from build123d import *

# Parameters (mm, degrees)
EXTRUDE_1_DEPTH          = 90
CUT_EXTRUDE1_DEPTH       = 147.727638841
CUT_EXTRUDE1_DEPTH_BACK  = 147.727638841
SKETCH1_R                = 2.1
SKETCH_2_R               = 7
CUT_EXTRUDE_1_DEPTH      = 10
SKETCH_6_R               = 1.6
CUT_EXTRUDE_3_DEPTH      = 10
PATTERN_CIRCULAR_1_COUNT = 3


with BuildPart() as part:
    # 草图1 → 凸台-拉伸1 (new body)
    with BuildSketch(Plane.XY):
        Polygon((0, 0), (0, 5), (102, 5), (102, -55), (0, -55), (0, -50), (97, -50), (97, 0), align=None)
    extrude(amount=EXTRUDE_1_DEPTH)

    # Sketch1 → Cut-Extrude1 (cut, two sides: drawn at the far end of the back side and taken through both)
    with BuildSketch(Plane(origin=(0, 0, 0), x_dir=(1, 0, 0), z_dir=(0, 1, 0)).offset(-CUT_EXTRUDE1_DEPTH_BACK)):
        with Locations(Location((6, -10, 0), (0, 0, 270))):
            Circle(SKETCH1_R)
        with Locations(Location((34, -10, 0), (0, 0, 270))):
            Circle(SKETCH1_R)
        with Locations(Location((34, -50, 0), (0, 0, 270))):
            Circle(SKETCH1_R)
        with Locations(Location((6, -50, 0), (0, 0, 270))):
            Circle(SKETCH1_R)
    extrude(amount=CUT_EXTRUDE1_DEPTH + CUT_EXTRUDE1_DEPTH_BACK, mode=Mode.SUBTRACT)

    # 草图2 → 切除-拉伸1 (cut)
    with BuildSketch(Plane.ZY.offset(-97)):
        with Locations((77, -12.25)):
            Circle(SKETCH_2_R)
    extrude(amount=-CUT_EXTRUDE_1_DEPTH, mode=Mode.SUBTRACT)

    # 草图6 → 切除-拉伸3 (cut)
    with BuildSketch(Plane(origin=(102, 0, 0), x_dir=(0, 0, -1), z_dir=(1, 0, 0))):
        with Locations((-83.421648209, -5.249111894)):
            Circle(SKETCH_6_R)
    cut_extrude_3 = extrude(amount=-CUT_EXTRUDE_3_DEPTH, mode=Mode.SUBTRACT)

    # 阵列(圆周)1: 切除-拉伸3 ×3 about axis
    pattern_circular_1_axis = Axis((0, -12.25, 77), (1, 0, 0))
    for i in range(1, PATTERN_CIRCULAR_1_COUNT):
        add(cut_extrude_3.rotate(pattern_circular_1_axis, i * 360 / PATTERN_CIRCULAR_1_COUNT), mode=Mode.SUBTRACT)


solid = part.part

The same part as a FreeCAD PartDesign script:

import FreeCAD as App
import Part
import Sketcher

V = App.Vector

doc = App.newDocument("Part")
body = doc.addObject("PartDesign::Body", "Body")

sketch1 = body.newObject("Sketcher::SketchObject", "Sketch")
sketch1.AttachmentSupport = (doc.getObject("XY_Plane"), [""])
sketch1.MapMode = "FlatFace"
sketch1.addGeometry(Part.LineSegment(V(0, 5, 0), V(0, 0, 0)), False)
sketch1.addGeometry(Part.LineSegment(V(0, 0, 0), V(97, 0, 0)), False)
sketch1.addGeometry(Part.LineSegment(V(97, 0, 0), V(97, -50, 0)), False)
sketch1.addGeometry(Part.LineSegment(V(97, -50, 0), V(0, -50, 0)), False)
sketch1.addGeometry(Part.LineSegment(V(0, -50, 0), V(0, -55, 0)), False)
sketch1.addGeometry(Part.LineSegment(V(0, -55, 0), V(102, -55, 0)), False)
sketch1.addGeometry(Part.LineSegment(V(102, -55, 0), V(102, 5, 0)), False)
sketch1.addGeometry(Part.LineSegment(V(102, 5, 0), V(0, 5, 0)), False)
sketch1.addConstraint(Sketcher.Constraint("Coincident", 0, 2, 1, 1))
sketch1.addConstraint(Sketcher.Constraint("Coincident", 1, 2, 2, 1))
sketch1.addConstraint(Sketcher.Constraint("Coincident", 2, 2, 3, 1))
sketch1.addConstraint(Sketcher.Constraint("Coincident", 3, 2, 4, 1))
sketch1.addConstraint(Sketcher.Constraint("Coincident", 4, 2, 5, 1))
sketch1.addConstraint(Sketcher.Constraint("Coincident", 5, 2, 6, 1))
sketch1.addConstraint(Sketcher.Constraint("Coincident", 6, 2, 7, 1))
sketch1.addConstraint(Sketcher.Constraint("Coincident", 7, 2, 0, 1))
sketch1.addConstraint(Sketcher.Constraint("Vertical", 0))
sketch1.addConstraint(Sketcher.Constraint("Horizontal", 1))
sketch1.addConstraint(Sketcher.Constraint("Vertical", 2))
sketch1.addConstraint(Sketcher.Constraint("Horizontal", 3))
sketch1.addConstraint(Sketcher.Constraint("Vertical", 4))
sketch1.addConstraint(Sketcher.Constraint("Horizontal", 5))
sketch1.addConstraint(Sketcher.Constraint("Vertical", 6))
sketch1.addConstraint(Sketcher.Constraint("Horizontal", 7))
sketch1.addConstraint(Sketcher.Constraint("Coincident", 0, 2, -1, 1))
sketch1.addConstraint(Sketcher.Constraint("PointOnObject", 3, 2, -2))
sketch1.addConstraint(Sketcher.Constraint("Equal", 0, 4))
sketch1.addConstraint(Sketcher.Constraint("DistanceX", 1, 1, 1, 2, 97.0))
sketch1.addConstraint(Sketcher.Constraint("DistanceX", 5, 1, 5, 2, 102.0))
sketch1.addConstraint(Sketcher.Constraint("DistanceY", 0, 2, 0, 1, 5.0))
sketch1.addConstraint(Sketcher.Constraint("DistanceY", 2, 2, 2, 1, 50.0))
pad1 = body.newObject("PartDesign::Pad", "Pad")
pad1.Profile = sketch1
pad1.Length = 90

sketch2 = body.newObject("Sketcher::SketchObject", "Sketch001")
sketch2.AttachmentSupport = (doc.getObject("XZ_Plane"), [""])
sketch2.MapMode = "FlatFace"
sketch2.addGeometry(Part.Circle(V(6, 10, 0), V(0, 0, 1), 2.1), False)
sketch2.addGeometry(Part.Circle(V(34, 10, 0), V(0, 0, 1), 2.1), False)
sketch2.addGeometry(Part.Circle(V(34, 50, 0), V(0, 0, 1), 2.1), False)
sketch2.addGeometry(Part.Circle(V(6, 50, 0), V(0, 0, 1), 2.1), False)
sketch2.addConstraint(Sketcher.Constraint("Equal", 0, 1))
sketch2.addConstraint(Sketcher.Constraint("Equal", 1, 2))
sketch2.addConstraint(Sketcher.Constraint("Equal", 2, 3))
sketch2.addConstraint(Sketcher.Constraint("Horizontal", 0, 3, 1, 3))
sketch2.addConstraint(Sketcher.Constraint("Horizontal", 2, 3, 3, 3))
sketch2.addConstraint(Sketcher.Constraint("Vertical", 1, 3, 2, 3))
sketch2.addConstraint(Sketcher.Constraint("Vertical", 0, 3, 3, 3))
sketch2.addConstraint(Sketcher.Constraint("Diameter", 0, 4.2))
sketch2.addConstraint(Sketcher.Constraint("DistanceX", -1, 1, 0, 3, 6.0))
sketch2.addConstraint(Sketcher.Constraint("DistanceY", -1, 1, 0, 3, 10.0))
sketch2.addConstraint(Sketcher.Constraint("DistanceX", -1, 1, 1, 3, 34.0))
sketch2.addConstraint(Sketcher.Constraint("DistanceY", -1, 1, 2, 3, 50.0))
pocket1 = body.newObject("PartDesign::Pocket", "Pocket")
pocket1.Profile = sketch2
pocket1.Type = "ThroughAll"
pocket1.Midplane = True

sketch3 = body.newObject("Sketcher::SketchObject", "Sketch002")
sketch3.AttachmentSupport = (doc.getObject("YZ_Plane"), [""])
sketch3.MapMode = "FlatFace"
sketch3.AttachmentOffset = App.Placement(V(0, 0, 97), App.Rotation())
sketch3.addGeometry(Part.Circle(V(-12, 77, 0), V(0, 0, 1), 7), False)
sketch3.addConstraint(Sketcher.Constraint("Diameter", 0, 14.0))
sketch3.addConstraint(Sketcher.Constraint("DistanceY", -1, 1, 0, 3, 77.0))
sketch3.addConstraint(Sketcher.Constraint("DistanceX", 0, 3, -1, 1, 12.25))
pocket2 = body.newObject("PartDesign::Pocket", "Pocket001")
pocket2.Profile = sketch3
pocket2.Length = 10
pocket2.Reversed = True

sketch4 = body.newObject("Sketcher::SketchObject", "Sketch003")
sketch4.AttachmentSupport = (doc.getObject("YZ_Plane"), [""])
sketch4.MapMode = "FlatFace"
sketch4.AttachmentOffset = App.Placement(V(0, 0, 102), App.Rotation())
sketch4.addGeometry(Part.Circle(V(-5.2, 83.4, 0), V(0, 0, 1), 1.6), False)
sketch4.addConstraint(Sketcher.Constraint("Diameter", 0, 3.2))
sketch4.addConstraint(Sketcher.Constraint("DistanceX", 0, 3, -1, 1, 5.249112))
sketch4.addConstraint(Sketcher.Constraint("DistanceY", -1, 1, 0, 3, 83.421648))
pocket3 = body.newObject("PartDesign::Pocket", "Pocket002")
pocket3.Profile = sketch4
pocket3.Length = 10
doc.recompute()

datumline = body.newObject("PartDesign::Line", "DatumLine")
datumline.Placement = App.Placement(V(0, -12.25, 77), App.Rotation(V(0, 0, 1), V(1, 0, 0)))
polarpattern = body.newObject("PartDesign::PolarPattern", "PolarPattern")
polarpattern.Originals = [pocket3]
polarpattern.Axis = (datumline, [""])
polarpattern.Angle = 360
polarpattern.Occurrences = 3
body.Tip = polarpattern

doc.recompute()
